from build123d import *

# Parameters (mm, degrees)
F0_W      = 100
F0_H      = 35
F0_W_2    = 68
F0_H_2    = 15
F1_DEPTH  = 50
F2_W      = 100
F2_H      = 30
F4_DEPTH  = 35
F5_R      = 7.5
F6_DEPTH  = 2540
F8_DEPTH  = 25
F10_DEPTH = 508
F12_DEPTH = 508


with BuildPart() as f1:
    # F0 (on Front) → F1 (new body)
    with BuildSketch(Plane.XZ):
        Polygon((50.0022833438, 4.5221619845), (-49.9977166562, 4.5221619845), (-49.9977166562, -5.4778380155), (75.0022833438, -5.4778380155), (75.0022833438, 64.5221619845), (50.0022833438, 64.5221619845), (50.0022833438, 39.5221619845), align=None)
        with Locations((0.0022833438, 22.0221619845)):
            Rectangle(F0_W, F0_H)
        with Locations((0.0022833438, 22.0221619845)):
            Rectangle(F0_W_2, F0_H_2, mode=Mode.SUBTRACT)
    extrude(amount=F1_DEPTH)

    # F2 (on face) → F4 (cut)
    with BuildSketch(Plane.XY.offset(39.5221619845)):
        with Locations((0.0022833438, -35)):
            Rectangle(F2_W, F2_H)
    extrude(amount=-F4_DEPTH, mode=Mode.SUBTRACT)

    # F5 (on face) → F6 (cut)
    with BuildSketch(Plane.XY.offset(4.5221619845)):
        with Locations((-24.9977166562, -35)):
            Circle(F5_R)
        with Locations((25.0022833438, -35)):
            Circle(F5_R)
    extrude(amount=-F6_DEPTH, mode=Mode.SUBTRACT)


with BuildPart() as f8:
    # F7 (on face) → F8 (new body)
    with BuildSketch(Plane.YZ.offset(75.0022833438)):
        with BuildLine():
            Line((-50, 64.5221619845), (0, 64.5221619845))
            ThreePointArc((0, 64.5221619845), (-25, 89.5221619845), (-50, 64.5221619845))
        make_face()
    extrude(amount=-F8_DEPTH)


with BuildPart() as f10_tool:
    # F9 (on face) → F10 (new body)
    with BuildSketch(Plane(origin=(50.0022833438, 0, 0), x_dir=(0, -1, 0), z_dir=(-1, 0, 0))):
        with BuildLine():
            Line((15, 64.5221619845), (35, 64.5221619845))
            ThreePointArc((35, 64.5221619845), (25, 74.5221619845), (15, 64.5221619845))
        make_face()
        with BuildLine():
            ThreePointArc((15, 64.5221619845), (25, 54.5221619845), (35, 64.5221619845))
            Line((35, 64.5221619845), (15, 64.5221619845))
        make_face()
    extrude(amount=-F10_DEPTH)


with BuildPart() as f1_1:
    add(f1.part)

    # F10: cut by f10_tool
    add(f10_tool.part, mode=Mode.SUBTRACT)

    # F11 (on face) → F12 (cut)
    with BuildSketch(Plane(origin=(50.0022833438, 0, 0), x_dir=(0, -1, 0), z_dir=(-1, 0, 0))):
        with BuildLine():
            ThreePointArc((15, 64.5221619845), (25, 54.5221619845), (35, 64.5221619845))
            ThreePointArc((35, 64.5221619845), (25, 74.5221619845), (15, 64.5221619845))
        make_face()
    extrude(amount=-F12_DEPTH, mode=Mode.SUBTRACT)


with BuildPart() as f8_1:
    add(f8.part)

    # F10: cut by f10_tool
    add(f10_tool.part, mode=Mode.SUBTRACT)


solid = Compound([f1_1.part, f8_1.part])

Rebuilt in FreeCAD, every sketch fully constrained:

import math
import FreeCAD as App
import Part
import Sketcher
from FreeCAD import Vector

doc = App.newDocument("Part")
body = doc.addObject("PartDesign::Body", "Body")

# Sketch on XZ plane
sketch1 = doc.addObject("Sketcher::SketchObject", "Sketch")
body.addObject(sketch1)
sketch1.AttachmentSupport = (doc.XZ_Plane, [""])
sketch1.MapMode = "FlatFace"
sketch1.addGeometry(Part.LineSegment(Vector(-49.997717, -5.477838, 0), Vector(75.002283, -5.477838, 0)), False)
sketch1.addGeometry(Part.LineSegment(Vector(75.002283, -5.477838, 0), Vector(75.002283, 64.522162, 0)), False)
sketch1.addGeometry(Part.LineSegment(Vector(75.002283, 64.522162, 0), Vector(50.002283, 64.522162, 0)), False)
sketch1.addGeometry(Part.LineSegment(Vector(50.002283, 64.522162, 0), Vector(50.002283, 39.522162, 0)), False)
sketch1.addGeometry(Part.LineSegment(Vector(50.002283, 39.522162, 0), Vector(-49.997717, 39.522162, 0)), False)
sketch1.addGeometry(Part.LineSegment(Vector(-49.997717, 39.522162, 0), Vector(-49.997717, -5.477838, 0)), False)
sketch1.addGeometry(Part.LineSegment(Vector(34.002283, 14.522162, 0), Vector(-33.997717, 14.522162, 0)), False)
sketch1.addGeometry(Part.LineSegment(Vector(-33.997717, 14.522162, 0), Vector(-33.997717, 29.522162, 0)), False)
sketch1.addGeometry(Part.LineSegment(Vector(-33.997717, 29.522162, 0), Vector(34.002283, 29.522162, 0)), False)
sketch1.addGeometry(Part.LineSegment(Vector(34.002283, 29.522162, 0), Vector(34.002283, 14.522162, 0)), False)
sketch1.addConstraint(Sketcher.Constraint("Coincident", 0, 2, 1, 1))
sketch1.addConstraint(Sketcher.Constraint("Coincident", 1, 2, 2, 1))
sketch1.addConstraint(Sketcher.Constraint("Coincident", 2, 2, 3, 1))
sketch1.addConstraint(Sketcher.Constraint("Coincident", 3, 2, 4, 1))
sketch1.addConstraint(Sketcher.Constraint("Coincident", 4, 2, 5, 1))
sketch1.addConstraint(Sketcher.Constraint("Coincident", 5, 2, 0, 1))
sketch1.addConstraint(Sketcher.Constraint("Coincident", 6, 2, 7, 1))
sketch1.addConstraint(Sketcher.Constraint("Coincident", 7, 2, 8, 1))
sketch1.addConstraint(Sketcher.Constraint("Coincident", 8, 2, 9, 1))
sketch1.addConstraint(Sketcher.Constraint("Coincident", 9, 2, 6, 1))
sketch1.addConstraint(Sketcher.Constraint("Horizontal", 0))
sketch1.addConstraint(Sketcher.Constraint("Vertical", 1))
sketch1.addConstraint(Sketcher.Constraint("Horizontal", 2))
sketch1.addConstraint(Sketcher.Constraint("Vertical", 3))
sketch1.addConstraint(Sketcher.Constraint("Horizontal", 4))
sketch1.addConstraint(Sketcher.Constraint("Vertical", 5))
sketch1.addConstraint(Sketcher.Constraint("Horizontal", 6))
sketch1.addConstraint(Sketcher.Constraint("Vertical", 7))
sketch1.addConstraint(Sketcher.Constraint("Horizontal", 8))
sketch1.addConstraint(Sketcher.Constraint("Vertical", 9))
sketch1.addConstraint(Sketcher.Constraint("Equal", 2, 3))
sketch1.addConstraint(Sketcher.Constraint("DistanceX", 0, 1, 0, 2, 125.0))
sketch1.addConstraint(Sketcher.Constraint("DistanceX", 2, 2, 2, 1, 25.0))
sketch1.addConstraint(Sketcher.Constraint("DistanceX", 6, 2, 6, 1, 68.0))
sketch1.addConstraint(Sketcher.Constraint("DistanceY", 1, 1, 1, 2, 70.0))
sketch1.addConstraint(Sketcher.Constraint("DistanceY", 7, 1, 7, 2, 15.0))
sketch1.addConstraint(Sketcher.Constraint("DistanceX", 5, 2, 6, 2, 16.0))
sketch1.addConstraint(Sketcher.Constraint("DistanceY", 5, 2, 6, 2, 20.0))
sketch1.addConstraint(Sketcher.Constraint("DistanceY", 0, 2, -1, 1, 5.477838))
sketch1.addConstraint(Sketcher.Constraint("DistanceX", -1, 1, 0, 2, 75.002283))
pad1 = doc.addObject("PartDesign::Pad", "Pad")
body.addObject(pad1)
pad1.Profile = sketch1
pad1.Length = 50

# Sketch on XY plane
sketch2 = doc.addObject("Sketcher::SketchObject", "Sketch001")
body.addObject(sketch2)
sketch2.AttachmentSupport = (doc.XY_Plane, [""])
sketch2.MapMode = "FlatFace"
sketch2.AttachmentOffset = App.Placement(Vector(0, 0, 39.522162), App.Rotation())
sketch2.addGeometry(Part.LineSegment(Vector(-49.997717, -20, 0), Vector(-49.997717, -50, 0)), False)
sketch2.addGeometry(Part.LineSegment(Vector(-49.997717, -50, 0), Vector(50.002283, -50, 0)), False)
sketch2.addGeometry(Part.LineSegment(Vector(50.002283, -50, 0), Vector(50.002283, -20, 0)), False)
sketch2.addGeometry(Part.LineSegment(Vector(50.002283, -20, 0), Vector(-49.997717, -20, 0)), False)
sketch2.addConstraint(Sketcher.Constraint("Coincident", 0, 2, 1, 1))
sketch2.addConstraint(Sketcher.Constraint("Coincident", 1, 2, 2, 1))
sketch2.addConstraint(Sketcher.Constraint("Coincident", 2, 2, 3, 1))
sketch2.addConstraint(Sketcher.Constraint("Coincident", 3, 2, 0, 1))
sketch2.addConstraint(Sketcher.Constraint("Vertical", 0))
sketch2.addConstraint(Sketcher.Constraint("Horizontal", 1))
sketch2.addConstraint(Sketcher.Constraint("Vertical", 2))
sketch2.addConstraint(Sketcher.Constraint("Horizontal", 3))
sketch2.addConstraint(Sketcher.Constraint("DistanceX", 1, 1, 1, 2, 100.0))
sketch2.addConstraint(Sketcher.Constraint("DistanceY", 0, 2, 0, 1, 30.0))
sketch2.addConstraint(Sketcher.Constraint("DistanceY", 0, 2, -1, 1, 50.0))
sketch2.addConstraint(Sketcher.Constraint("DistanceX", 0, 2, -1, 1, 49.997717))
pocket1 = doc.addObject("PartDesign::Pocket", "Pocket")
body.addObject(pocket1)
pocket1.Profile = sketch2
pocket1.Length = 35

# Sketch on XY plane
sketch3 = doc.addObject("Sketcher::SketchObject", "Sketch002")
body.addObject(sketch3)
sketch3.AttachmentSupport = (doc.XY_Plane, [""])
sketch3.MapMode = "FlatFace"
sketch3.AttachmentOffset = App.Placement(Vector(0, 0, 4.522162), App.Rotation())
sketch3.addGeometry(Part.Circle(Vector(-24.997717, -35, 0), Vector(0, 0, 1), 7.5), False)
sketch3.addGeometry(Part.Circle(Vector(25.002283, -35, 0), Vector(0, 0, 1), 7.5), False)
sketch3.addConstraint(Sketcher.Constraint("Equal", 0, 1))
sketch3.addConstraint(Sketcher.Constraint("Horizontal", 0, 3, 1, 3))
sketch3.addConstraint(Sketcher.Constraint("Diameter", 0, 15.0))
sketch3.addConstraint(Sketcher.Constraint("DistanceY", 0, 3, -1, 1, 35.0))
sketch3.addConstraint(Sketcher.Constraint("DistanceX", 0, 3, 1, 3, 50.0))
sketch3.addConstraint(Sketcher.Constraint("DistanceX", 0, 3, -1, 1, 24.997717))
pocket2 = doc.addObject("PartDesign::Pocket", "Pocket001")
body.addObject(pocket2)
pocket2.Profile = sketch3
pocket2.Length = 2540
body2 = doc.addObject("PartDesign::Body", "Body001")

# Sketch on YZ plane
sketch4 = doc.addObject("Sketcher::SketchObject", "Sketch003")
body2.addObject(sketch4)
sketch4.AttachmentSupport = (doc.getObject("YZ_Plane001"), [""])
sketch4.MapMode = "FlatFace"
sketch4.AttachmentOffset = App.Placement(Vector(0, 0, 75.002283), App.Rotation())
sketch4.addGeometry(Part.LineSegment(Vector(-50, 64.522162, 0), Vector(0, 64.522162, 0)), False)
sketch4.addGeometry(Part.ArcOfCircle(Part.Circle(Vector(-25, 64.522162, 0), Vector(0, 0, 1), 25), math.radians(0), math.radians(180)), False)
sketch4.addConstraint(Sketcher.Constraint("Coincident", 0, 1, 1, 2))
sketch4.addConstraint(Sketcher.Constraint("Coincident", 1, 1, 0, 2))
sketch4.addConstraint(Sketcher.Constraint("Horizontal", 0))
sketch4.addConstraint(Sketcher.Constraint("PointOnObject", 1, 1, -2))
sketch4.addConstraint(Sketcher.Constraint("Horizontal", 1, 3, 0, 1))
sketch4.addConstraint(Sketcher.Constraint("Radius", 1, 25.0))
sketch4.addConstraint(Sketcher.Constraint("DistanceY", -1, 1, 1, 3, 64.522162))
pad2 = doc.addObject("PartDesign::Pad", "Pad001")
body2.addObject(pad2)
pad2.Profile = sketch4
pad2.Length = 25
pad2.Reversed = True
body3 = doc.addObject("PartDesign::Body", "Body002")

# Sketch on YZ plane
sketch5 = doc.addObject("Sketcher::SketchObject", "Sketch004")
body3.addObject(sketch5)
sketch5.AttachmentSupport = (doc.getObject("YZ_Plane002"), [""])
sketch5.MapMode = "FlatFace"
sketch5.AttachmentOffset = App.Placement(Vector(0, 0, 50.002283), App.Rotation())
sketch5.addGeometry(Part.Circle(Vector(-25, 64.522162, 0), Vector(0, 0, 1), 10), False)
sketch5.addConstraint(Sketcher.Constraint("Diameter", 0, 20.0))
sketch5.addConstraint(Sketcher.Constraint("DistanceX", 0, 3, -1, 1, 25.0))
sketch5.addConstraint(Sketcher.Constraint("DistanceY", -1, 1, 0, 3, 64.522162))
pad3 = doc.addObject("PartDesign::Pad", "Pad002")
body3.addObject(pad3)
pad3.Profile = sketch5
pad3.Length = 508
doc.recompute()

body4 = doc.addObject("PartDesign::Body", "Body003")
body4.BaseFeature = body3
boolean = doc.addObject("PartDesign::Boolean", "Boolean")
body.addObject(boolean)
boolean.Type = "Cut"
boolean.addObjects([body4])
doc.recompute()

# Sketch on YZ plane
sketch6 = doc.addObject("Sketcher::SketchObject", "Sketch005")
body.addObject(sketch6)
sketch6.AttachmentSupport = (doc.YZ_Plane, [""])
sketch6.MapMode = "FlatFace"
sketch6.AttachmentOffset = App.Placement(Vector(0, 0, 50.002283), App.Rotation())
sketch6.addGeometry(Part.Circle(Vector(-25, 64.522162, 0), Vector(0, 0, 1), 10), False)
sketch6.addConstraint(Sketcher.Constraint("Diameter", 0, 20.0))
sketch6.addConstraint(Sketcher.Constraint("DistanceX", 0, 3, -1, 1, 25.0))
sketch6.addConstraint(Sketcher.Constraint("DistanceY", -1, 1, 0, 3, 64.522162))
pocket3 = doc.addObject("PartDesign::Pocket", "Pocket002")
body.addObject(pocket3)
pocket3.Profile = sketch6
pocket3.Length = 508
pocket3.Reversed = True
doc.recompute()

boolean2 = doc.addObject("PartDesign::Boolean", "Boolean001")
body2.addObject(boolean2)
boolean2.Type = "Cut"
boolean2.addObjects([body3])

doc.recompute()
